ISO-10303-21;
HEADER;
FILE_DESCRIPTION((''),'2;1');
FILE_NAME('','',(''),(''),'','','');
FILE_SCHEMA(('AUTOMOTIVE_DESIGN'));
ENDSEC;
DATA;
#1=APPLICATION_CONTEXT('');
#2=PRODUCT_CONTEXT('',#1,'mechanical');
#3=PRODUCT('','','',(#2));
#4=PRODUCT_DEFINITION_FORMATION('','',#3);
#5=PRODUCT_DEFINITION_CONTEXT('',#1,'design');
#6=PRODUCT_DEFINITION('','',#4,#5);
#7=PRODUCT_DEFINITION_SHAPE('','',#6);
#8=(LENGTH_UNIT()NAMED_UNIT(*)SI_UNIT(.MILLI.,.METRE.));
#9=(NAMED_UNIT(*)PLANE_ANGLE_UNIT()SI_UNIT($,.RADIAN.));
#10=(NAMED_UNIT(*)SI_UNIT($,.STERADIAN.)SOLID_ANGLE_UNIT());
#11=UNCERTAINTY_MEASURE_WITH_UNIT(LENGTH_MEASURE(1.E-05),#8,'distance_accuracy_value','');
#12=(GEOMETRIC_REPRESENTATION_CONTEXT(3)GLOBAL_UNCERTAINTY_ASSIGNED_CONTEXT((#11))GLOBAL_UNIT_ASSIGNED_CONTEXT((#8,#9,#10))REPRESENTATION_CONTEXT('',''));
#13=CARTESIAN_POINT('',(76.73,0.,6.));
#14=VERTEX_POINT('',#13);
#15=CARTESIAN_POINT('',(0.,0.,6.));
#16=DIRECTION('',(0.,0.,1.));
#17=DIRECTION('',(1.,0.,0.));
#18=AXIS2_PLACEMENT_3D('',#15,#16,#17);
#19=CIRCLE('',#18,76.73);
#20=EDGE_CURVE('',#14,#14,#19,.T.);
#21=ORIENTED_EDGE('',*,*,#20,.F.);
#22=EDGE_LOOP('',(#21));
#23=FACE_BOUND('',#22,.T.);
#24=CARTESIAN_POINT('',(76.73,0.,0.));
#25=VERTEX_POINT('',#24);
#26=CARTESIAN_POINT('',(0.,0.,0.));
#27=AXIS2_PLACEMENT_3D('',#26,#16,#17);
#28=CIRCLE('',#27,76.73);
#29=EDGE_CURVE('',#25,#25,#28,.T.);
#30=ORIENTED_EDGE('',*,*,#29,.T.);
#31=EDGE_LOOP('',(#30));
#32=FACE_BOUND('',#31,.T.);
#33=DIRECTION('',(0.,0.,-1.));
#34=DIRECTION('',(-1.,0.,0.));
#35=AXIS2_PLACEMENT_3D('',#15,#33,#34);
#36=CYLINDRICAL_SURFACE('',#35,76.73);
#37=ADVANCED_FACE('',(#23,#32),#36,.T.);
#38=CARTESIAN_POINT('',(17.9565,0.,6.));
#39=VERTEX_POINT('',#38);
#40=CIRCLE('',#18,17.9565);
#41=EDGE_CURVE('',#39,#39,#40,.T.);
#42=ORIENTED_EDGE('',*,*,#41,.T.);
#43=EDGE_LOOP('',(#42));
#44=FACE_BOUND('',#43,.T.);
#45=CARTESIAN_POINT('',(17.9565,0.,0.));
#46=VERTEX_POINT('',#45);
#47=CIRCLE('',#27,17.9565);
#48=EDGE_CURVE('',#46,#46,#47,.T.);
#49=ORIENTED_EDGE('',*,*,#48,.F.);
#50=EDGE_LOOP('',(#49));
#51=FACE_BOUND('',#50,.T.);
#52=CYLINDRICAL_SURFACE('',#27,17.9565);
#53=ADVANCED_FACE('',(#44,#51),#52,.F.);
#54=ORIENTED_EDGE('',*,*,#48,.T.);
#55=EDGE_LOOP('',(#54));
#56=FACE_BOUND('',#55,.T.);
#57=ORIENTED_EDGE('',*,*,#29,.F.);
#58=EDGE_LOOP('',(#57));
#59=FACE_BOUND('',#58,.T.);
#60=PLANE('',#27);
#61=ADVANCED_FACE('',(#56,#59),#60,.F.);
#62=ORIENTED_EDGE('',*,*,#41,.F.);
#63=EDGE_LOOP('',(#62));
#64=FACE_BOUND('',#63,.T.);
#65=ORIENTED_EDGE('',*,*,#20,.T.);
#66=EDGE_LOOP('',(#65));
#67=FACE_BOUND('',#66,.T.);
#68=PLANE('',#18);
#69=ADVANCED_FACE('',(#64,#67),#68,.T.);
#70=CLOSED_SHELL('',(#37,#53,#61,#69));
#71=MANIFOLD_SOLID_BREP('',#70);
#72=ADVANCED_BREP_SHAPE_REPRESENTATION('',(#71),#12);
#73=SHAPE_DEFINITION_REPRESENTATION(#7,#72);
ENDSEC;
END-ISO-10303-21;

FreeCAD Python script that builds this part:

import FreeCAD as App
import Part
import Sketcher

V = App.Vector
Q = App.Units.Quantity

doc = App.newDocument("Part")
body = doc.addObject("PartDesign::Body", "Body")

sketch1 = body.newObject("Sketcher::SketchObject", "Sketch")
sketch1.AttachmentSupport = (doc.getObject("XY_Plane"), [""])
sketch1.MapMode = "FlatFace"
sketch1.addGeometry(Part.Circle(V(0, 0, 0), V(0, 0, 1), 76.73), False)
sketch1.addConstraint([
    Sketcher.Constraint("Coincident", 0, 3, -1, 1),
    Sketcher.Constraint("Diameter", 0, Q("153.46 mm")),
])
pad1 = body.newObject("PartDesign::Pad", "Pad")
pad1.Profile = sketch1
pad1.Length = 6

sketch2 = body.newObject("Sketcher::SketchObject", "Sketch001")
sketch2.AttachmentSupport = (doc.getObject("XY_Plane"), [""])
sketch2.MapMode = "FlatFace"
sketch2.AttachmentOffset = App.Placement(V(0, 0, 6), App.Rotation())
sketch2.addGeometry(Part.Circle(V(0, 0, 0), V(0, 0, 1), 17.9565), False)
sketch2.addConstraint([
    Sketcher.Constraint("Coincident", 0, 3, -1, 1),
    Sketcher.Constraint("Diameter", 0, Q("35.913 mm")),
])
pocket1 = body.newObject("PartDesign::Pocket", "Pocket")
pocket1.Profile = sketch2
pocket1.Length = 6

doc.recompute()
